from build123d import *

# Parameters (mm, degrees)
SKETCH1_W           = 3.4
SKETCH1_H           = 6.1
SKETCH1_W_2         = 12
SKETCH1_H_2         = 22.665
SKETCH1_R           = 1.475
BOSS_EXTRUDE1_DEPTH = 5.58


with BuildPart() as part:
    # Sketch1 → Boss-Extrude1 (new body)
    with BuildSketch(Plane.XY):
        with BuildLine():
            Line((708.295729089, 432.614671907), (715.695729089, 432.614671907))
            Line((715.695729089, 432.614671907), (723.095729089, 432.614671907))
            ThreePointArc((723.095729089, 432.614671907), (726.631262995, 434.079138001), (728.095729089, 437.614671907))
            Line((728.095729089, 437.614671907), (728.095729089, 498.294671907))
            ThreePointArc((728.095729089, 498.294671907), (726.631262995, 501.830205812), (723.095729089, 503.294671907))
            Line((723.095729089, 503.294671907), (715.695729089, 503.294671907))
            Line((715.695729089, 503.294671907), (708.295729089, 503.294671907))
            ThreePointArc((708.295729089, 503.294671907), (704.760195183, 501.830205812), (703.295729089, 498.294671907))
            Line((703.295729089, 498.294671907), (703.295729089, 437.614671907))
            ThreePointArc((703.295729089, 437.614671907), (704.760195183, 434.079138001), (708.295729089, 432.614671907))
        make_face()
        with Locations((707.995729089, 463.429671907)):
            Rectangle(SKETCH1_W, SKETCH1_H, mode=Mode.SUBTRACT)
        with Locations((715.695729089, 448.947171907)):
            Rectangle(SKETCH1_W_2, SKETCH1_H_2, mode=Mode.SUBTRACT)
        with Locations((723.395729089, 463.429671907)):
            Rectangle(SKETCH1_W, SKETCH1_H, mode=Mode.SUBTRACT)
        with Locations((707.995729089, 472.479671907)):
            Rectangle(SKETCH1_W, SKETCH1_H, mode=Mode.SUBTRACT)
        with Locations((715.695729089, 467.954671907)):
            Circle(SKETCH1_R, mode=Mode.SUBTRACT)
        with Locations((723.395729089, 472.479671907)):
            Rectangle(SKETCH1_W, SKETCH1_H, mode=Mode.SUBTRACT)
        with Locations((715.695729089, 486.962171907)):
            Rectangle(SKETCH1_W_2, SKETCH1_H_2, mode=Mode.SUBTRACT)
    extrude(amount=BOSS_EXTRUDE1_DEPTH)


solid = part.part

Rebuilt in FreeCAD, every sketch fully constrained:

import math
import FreeCAD as App
import Part
import Sketcher

V = App.Vector
Q = App.Units.Quantity

doc = App.newDocument("Part")
body = doc.addObject("PartDesign::Body", "Body")

# Sketch on XY plane
sketch1 = body.newObject("Sketcher::SketchObject", "Sketch")
sketch1.AttachmentSupport = (doc.getObject("XY_Plane"), [""])
sketch1.MapMode = "FlatFace"
sketch1.addGeometry([
    Part.LineSegment(V(708.3, 432.6, 0), V(723.1, 432.6, 0)),  # 0
    Part.ArcOfCircle(Part.Circle(V(723.1, 437.6, 0), V(0, 0, 1), 5), math.radians(-90), math.radians(0)),  # 1
    Part.LineSegment(V(728.1, 437.6, 0), V(728.1, 498.3, 0)),  # 2
    Part.ArcOfCircle(Part.Circle(V(723.1, 498.3, 0), V(0, 0, 1), 5), math.radians(0), math.radians(90)),  # 3
    Part.LineSegment(V(723.1, 503.3, 0), V(708.3, 503.3, 0)),  # 4
    Part.ArcOfCircle(Part.Circle(V(708.3, 498.3, 0), V(0, 0, 1), 5), math.radians(90), math.radians(180)),  # 5
    Part.LineSegment(V(703.3, 498.3, 0), V(703.3, 437.6, 0)),  # 6
    Part.ArcOfCircle(Part.Circle(V(708.3, 437.6, 0), V(0, 0, 1), 5), math.radians(180), math.radians(270)),  # 7
    Part.LineSegment(V(709.7, 460.4, 0), V(706.3, 460.4, 0)),  # 8
    Part.LineSegment(V(706.3, 460.4, 0), V(706.3, 466.5, 0)),  # 9
    Part.LineSegment(V(706.3, 466.5, 0), V(709.7, 466.5, 0)),  # 10
    Part.LineSegment(V(709.7, 466.5, 0), V(709.7, 460.4, 0)),  # 11
    Part.LineSegment(V(721.7, 437.6, 0), V(709.7, 437.6, 0)),  # 12
    Part.LineSegment(V(709.7, 437.6, 0), V(709.7, 460.3, 0)),  # 13
    Part.LineSegment(V(709.7, 460.3, 0), V(721.7, 460.3, 0)),  # 14
    Part.LineSegment(V(721.7, 460.3, 0), V(721.7, 437.6, 0)),  # 15
    Part.Circle(V(715.7, 468, 0), V(0, 0, 1), 1.5),  # 16
    Part.LineSegment(V(725.1, 460.4, 0), V(721.7, 460.4, 0)),  # 17
    Part.LineSegment(V(721.7, 460.4, 0), V(721.7, 466.5, 0)),  # 18
    Part.LineSegment(V(721.7, 466.5, 0), V(725.1, 466.5, 0)),  # 19
    Part.LineSegment(V(725.1, 466.5, 0), V(725.1, 460.4, 0)),  # 20
    Part.LineSegment(V(709.7, 469.4, 0), V(706.3, 469.4, 0)),  # 21
    Part.LineSegment(V(706.3, 469.4, 0), V(706.3, 475.5, 0)),  # 22
    Part.LineSegment(V(706.3, 475.5, 0), V(709.7, 475.5, 0)),  # 23
    Part.LineSegment(V(709.7, 475.5, 0), V(709.7, 469.4, 0)),  # 24
    Part.LineSegment(V(725.1, 469.4, 0), V(721.7, 469.4, 0)),  # 25
    Part.LineSegment(V(721.7, 469.4, 0), V(721.7, 475.5, 0)),  # 26
    Part.LineSegment(V(721.7, 475.5, 0), V(725.1, 475.5, 0)),  # 27
    Part.LineSegment(V(725.1, 475.5, 0), V(725.1, 469.4, 0)),  # 28
    Part.LineSegment(V(721.7, 475.6, 0), V(709.7, 475.6, 0)),  # 29
    Part.LineSegment(V(709.7, 475.6, 0), V(709.7, 498.3, 0)),  # 30
    Part.LineSegment(V(709.7, 498.3, 0), V(721.7, 498.3, 0)),  # 31
    Part.LineSegment(V(721.7, 498.3, 0), V(721.7, 475.6, 0)),  # 32
], False)
sketch1.addConstraint([
    Sketcher.Constraint("Tangent", 0, 2, 1, 1),
    Sketcher.Constraint("Tangent", 1, 2, 2, 1),
    Sketcher.Constraint("Tangent", 2, 2, 3, 1),
    Sketcher.Constraint("Tangent", 3, 2, 4, 1),
    Sketcher.Constraint("Tangent", 4, 2, 5, 1),
    Sketcher.Constraint("Tangent", 5, 2, 6, 1),
    Sketcher.Constraint("Tangent", 6, 2, 7, 1),
    Sketcher.Constraint("Tangent", 7, 2, 0, 1),
    Sketcher.Constraint("Coincident", 8, 2, 9, 1),
    Sketcher.Constraint("Coincident", 9, 2, 10, 1),
    Sketcher.Constraint("Coincident", 10, 2, 11, 1),
    Sketcher.Constraint("Coincident", 11, 2, 8, 1),
    Sketcher.Constraint("Coincident", 12, 2, 13, 1),
    Sketcher.Constraint("Coincident", 13, 2, 14, 1),
    Sketcher.Constraint("Coincident", 14, 2, 15, 1),
    Sketcher.Constraint("Coincident", 15, 2, 12, 1),
    Sketcher.Constraint("Coincident", 17, 2, 18, 1),
    Sketcher.Constraint("Coincident", 18, 2, 19, 1),
    Sketcher.Constraint("Coincident", 19, 2, 20, 1),
    Sketcher.Constraint("Coincident", 20, 2, 17, 1),
    Sketcher.Constraint("Coincident", 21, 2, 22, 1),
    Sketcher.Constraint("Coincident", 22, 2, 23, 1),
    Sketcher.Constraint("Coincident", 23, 2, 24, 1),
    Sketcher.Constraint("Coincident", 24, 2, 21, 1),
    Sketcher.Constraint("Coincident", 25, 2, 26, 1),
    Sketcher.Constraint("Coincident", 26, 2, 27, 1),
    Sketcher.Constraint("Coincident", 27, 2, 28, 1),
    Sketcher.Constraint("Coincident", 28, 2, 25, 1),
    Sketcher.Constraint("Coincident", 29, 2, 30, 1),
    Sketcher.Constraint("Coincident", 30, 2, 31, 1),
    Sketcher.Constraint("Coincident", 31, 2, 32, 1),
    Sketcher.Constraint("Coincident", 32, 2, 29, 1),
    Sketcher.Constraint("Horizontal", 0),
    Sketcher.Constraint("Vertical", 2),
    Sketcher.Constraint("Horizontal", 4),
    Sketcher.Constraint("Vertical", 6),
    Sketcher.Constraint("Horizontal", 8),
    Sketcher.Constraint("Vertical", 9),
    Sketcher.Constraint("Horizontal", 10),
    Sketcher.Constraint("Vertical", 11),
    Sketcher.Constraint("Horizontal", 12),
    Sketcher.Constraint("Vertical", 13),
    Sketcher.Constraint("Horizontal", 14),
    Sketcher.Constraint("Vertical", 15),
    Sketcher.Constraint("Horizontal", 17),
    Sketcher.Constraint("Vertical", 18),
    Sketcher.Constraint("Horizontal", 19),
    Sketcher.Constraint("Vertical", 20),
    Sketcher.Constraint("Horizontal", 21),
    Sketcher.Constraint("Vertical", 22),
    Sketcher.Constraint("Horizontal", 23),
    Sketcher.Constraint("Vertical", 24),
    Sketcher.Constraint("Horizontal", 25),
    Sketcher.Constraint("Vertical", 26),
    Sketcher.Constraint("Horizontal", 27),
    Sketcher.Constraint("Vertical", 28),
    Sketcher.Constraint("Horizontal", 29),
    Sketcher.Constraint("Vertical", 30),
    Sketcher.Constraint("Horizontal", 31),
    Sketcher.Constraint("Vertical", 32),
    Sketcher.Constraint("Equal", 1, 3),
    Sketcher.Constraint("Equal", 3, 5),
    Sketcher.Constraint("Equal", 5, 7),
    Sketcher.Constraint("Horizontal", 6, 2, 12, 2),
    Sketcher.Constraint("Horizontal", 11, 2, 17, 2),
    Sketcher.Constraint("Horizontal", 10, 2, 18, 2),
    Sketcher.Constraint("Horizontal", 24, 2, 25, 2),
    Sketcher.Constraint("Horizontal", 23, 2, 26, 2),
    Sketcher.Constraint("Horizontal", 5, 2, 30, 2),
    Sketcher.Constraint("Vertical", 11, 2, 12, 2),
    Sketcher.Constraint("Vertical", 15, 2, 17, 2),
    Sketcher.Constraint("Vertical", 9, 2, 21, 2),
    Sketcher.Constraint("Vertical", 13, 2, 23, 2),
    Sketcher.Constraint("Vertical", 18, 2, 25, 2),
    Sketcher.Constraint("Vertical", 20, 2, 27, 2),
    Sketcher.Constraint("Vertical", 24, 2, 29, 2),
    Sketcher.Constraint("Vertical", 26, 2, 31, 2),
    Sketcher.Constraint("Equal", 10, 17),
    Sketcher.Constraint("Equal", 20, 22),
    Sketcher.Constraint("Equal", 15, 30),
    Sketcher.Constraint("Radius", 1, Q("5 mm")),
    Sketcher.Constraint("Diameter", 16, Q("2.95 mm")),
    Sketcher.Constraint("DistanceX", 12, 2, 12, 1, Q("12 mm")),
    Sketcher.Constraint("DistanceX", 0, 1, 0, 2, Q("14.8 mm")),
    Sketcher.Constraint("DistanceX", 8, 2, 8, 1, Q("3.4 mm")),
    Sketcher.Constraint("DistanceY", 9, 1, 9, 2, Q("6.1 mm")),
    Sketcher.Constraint("DistanceX", 8, 2, 7, 3, Q("2 mm")),
    Sketcher.Constraint("DistanceX", 10, 2, 16, 3, Q("6 mm")),
    Sketcher.Constraint("DistanceY", 2, 1, 2, 2, Q("60.68 mm")),
    Sketcher.Constraint("DistanceY", 13, 2, 11, 2, Q("0.1 mm")),
    Sketcher.Constraint("DistanceY", 23, 2, 29, 2, Q("0.1 mm")),
    Sketcher.Constraint("DistanceY", 13, 1, 13, 2, Q("22.665 mm")),
    Sketcher.Constraint("DistanceY", 16, 3, 3, 3, Q("30.34 mm")),
    Sketcher.Constraint("DistanceX", -1, 1, 1, 3, Q("723.095729 mm")),
    Sketcher.Constraint("DistanceY", -1, 1, 1, 3, Q("437.614672 mm")),
])
pad1 = body.newObject("PartDesign::Pad", "Pad")
pad1.Profile = sketch1
pad1.Length = 5.58

doc.recompute()
